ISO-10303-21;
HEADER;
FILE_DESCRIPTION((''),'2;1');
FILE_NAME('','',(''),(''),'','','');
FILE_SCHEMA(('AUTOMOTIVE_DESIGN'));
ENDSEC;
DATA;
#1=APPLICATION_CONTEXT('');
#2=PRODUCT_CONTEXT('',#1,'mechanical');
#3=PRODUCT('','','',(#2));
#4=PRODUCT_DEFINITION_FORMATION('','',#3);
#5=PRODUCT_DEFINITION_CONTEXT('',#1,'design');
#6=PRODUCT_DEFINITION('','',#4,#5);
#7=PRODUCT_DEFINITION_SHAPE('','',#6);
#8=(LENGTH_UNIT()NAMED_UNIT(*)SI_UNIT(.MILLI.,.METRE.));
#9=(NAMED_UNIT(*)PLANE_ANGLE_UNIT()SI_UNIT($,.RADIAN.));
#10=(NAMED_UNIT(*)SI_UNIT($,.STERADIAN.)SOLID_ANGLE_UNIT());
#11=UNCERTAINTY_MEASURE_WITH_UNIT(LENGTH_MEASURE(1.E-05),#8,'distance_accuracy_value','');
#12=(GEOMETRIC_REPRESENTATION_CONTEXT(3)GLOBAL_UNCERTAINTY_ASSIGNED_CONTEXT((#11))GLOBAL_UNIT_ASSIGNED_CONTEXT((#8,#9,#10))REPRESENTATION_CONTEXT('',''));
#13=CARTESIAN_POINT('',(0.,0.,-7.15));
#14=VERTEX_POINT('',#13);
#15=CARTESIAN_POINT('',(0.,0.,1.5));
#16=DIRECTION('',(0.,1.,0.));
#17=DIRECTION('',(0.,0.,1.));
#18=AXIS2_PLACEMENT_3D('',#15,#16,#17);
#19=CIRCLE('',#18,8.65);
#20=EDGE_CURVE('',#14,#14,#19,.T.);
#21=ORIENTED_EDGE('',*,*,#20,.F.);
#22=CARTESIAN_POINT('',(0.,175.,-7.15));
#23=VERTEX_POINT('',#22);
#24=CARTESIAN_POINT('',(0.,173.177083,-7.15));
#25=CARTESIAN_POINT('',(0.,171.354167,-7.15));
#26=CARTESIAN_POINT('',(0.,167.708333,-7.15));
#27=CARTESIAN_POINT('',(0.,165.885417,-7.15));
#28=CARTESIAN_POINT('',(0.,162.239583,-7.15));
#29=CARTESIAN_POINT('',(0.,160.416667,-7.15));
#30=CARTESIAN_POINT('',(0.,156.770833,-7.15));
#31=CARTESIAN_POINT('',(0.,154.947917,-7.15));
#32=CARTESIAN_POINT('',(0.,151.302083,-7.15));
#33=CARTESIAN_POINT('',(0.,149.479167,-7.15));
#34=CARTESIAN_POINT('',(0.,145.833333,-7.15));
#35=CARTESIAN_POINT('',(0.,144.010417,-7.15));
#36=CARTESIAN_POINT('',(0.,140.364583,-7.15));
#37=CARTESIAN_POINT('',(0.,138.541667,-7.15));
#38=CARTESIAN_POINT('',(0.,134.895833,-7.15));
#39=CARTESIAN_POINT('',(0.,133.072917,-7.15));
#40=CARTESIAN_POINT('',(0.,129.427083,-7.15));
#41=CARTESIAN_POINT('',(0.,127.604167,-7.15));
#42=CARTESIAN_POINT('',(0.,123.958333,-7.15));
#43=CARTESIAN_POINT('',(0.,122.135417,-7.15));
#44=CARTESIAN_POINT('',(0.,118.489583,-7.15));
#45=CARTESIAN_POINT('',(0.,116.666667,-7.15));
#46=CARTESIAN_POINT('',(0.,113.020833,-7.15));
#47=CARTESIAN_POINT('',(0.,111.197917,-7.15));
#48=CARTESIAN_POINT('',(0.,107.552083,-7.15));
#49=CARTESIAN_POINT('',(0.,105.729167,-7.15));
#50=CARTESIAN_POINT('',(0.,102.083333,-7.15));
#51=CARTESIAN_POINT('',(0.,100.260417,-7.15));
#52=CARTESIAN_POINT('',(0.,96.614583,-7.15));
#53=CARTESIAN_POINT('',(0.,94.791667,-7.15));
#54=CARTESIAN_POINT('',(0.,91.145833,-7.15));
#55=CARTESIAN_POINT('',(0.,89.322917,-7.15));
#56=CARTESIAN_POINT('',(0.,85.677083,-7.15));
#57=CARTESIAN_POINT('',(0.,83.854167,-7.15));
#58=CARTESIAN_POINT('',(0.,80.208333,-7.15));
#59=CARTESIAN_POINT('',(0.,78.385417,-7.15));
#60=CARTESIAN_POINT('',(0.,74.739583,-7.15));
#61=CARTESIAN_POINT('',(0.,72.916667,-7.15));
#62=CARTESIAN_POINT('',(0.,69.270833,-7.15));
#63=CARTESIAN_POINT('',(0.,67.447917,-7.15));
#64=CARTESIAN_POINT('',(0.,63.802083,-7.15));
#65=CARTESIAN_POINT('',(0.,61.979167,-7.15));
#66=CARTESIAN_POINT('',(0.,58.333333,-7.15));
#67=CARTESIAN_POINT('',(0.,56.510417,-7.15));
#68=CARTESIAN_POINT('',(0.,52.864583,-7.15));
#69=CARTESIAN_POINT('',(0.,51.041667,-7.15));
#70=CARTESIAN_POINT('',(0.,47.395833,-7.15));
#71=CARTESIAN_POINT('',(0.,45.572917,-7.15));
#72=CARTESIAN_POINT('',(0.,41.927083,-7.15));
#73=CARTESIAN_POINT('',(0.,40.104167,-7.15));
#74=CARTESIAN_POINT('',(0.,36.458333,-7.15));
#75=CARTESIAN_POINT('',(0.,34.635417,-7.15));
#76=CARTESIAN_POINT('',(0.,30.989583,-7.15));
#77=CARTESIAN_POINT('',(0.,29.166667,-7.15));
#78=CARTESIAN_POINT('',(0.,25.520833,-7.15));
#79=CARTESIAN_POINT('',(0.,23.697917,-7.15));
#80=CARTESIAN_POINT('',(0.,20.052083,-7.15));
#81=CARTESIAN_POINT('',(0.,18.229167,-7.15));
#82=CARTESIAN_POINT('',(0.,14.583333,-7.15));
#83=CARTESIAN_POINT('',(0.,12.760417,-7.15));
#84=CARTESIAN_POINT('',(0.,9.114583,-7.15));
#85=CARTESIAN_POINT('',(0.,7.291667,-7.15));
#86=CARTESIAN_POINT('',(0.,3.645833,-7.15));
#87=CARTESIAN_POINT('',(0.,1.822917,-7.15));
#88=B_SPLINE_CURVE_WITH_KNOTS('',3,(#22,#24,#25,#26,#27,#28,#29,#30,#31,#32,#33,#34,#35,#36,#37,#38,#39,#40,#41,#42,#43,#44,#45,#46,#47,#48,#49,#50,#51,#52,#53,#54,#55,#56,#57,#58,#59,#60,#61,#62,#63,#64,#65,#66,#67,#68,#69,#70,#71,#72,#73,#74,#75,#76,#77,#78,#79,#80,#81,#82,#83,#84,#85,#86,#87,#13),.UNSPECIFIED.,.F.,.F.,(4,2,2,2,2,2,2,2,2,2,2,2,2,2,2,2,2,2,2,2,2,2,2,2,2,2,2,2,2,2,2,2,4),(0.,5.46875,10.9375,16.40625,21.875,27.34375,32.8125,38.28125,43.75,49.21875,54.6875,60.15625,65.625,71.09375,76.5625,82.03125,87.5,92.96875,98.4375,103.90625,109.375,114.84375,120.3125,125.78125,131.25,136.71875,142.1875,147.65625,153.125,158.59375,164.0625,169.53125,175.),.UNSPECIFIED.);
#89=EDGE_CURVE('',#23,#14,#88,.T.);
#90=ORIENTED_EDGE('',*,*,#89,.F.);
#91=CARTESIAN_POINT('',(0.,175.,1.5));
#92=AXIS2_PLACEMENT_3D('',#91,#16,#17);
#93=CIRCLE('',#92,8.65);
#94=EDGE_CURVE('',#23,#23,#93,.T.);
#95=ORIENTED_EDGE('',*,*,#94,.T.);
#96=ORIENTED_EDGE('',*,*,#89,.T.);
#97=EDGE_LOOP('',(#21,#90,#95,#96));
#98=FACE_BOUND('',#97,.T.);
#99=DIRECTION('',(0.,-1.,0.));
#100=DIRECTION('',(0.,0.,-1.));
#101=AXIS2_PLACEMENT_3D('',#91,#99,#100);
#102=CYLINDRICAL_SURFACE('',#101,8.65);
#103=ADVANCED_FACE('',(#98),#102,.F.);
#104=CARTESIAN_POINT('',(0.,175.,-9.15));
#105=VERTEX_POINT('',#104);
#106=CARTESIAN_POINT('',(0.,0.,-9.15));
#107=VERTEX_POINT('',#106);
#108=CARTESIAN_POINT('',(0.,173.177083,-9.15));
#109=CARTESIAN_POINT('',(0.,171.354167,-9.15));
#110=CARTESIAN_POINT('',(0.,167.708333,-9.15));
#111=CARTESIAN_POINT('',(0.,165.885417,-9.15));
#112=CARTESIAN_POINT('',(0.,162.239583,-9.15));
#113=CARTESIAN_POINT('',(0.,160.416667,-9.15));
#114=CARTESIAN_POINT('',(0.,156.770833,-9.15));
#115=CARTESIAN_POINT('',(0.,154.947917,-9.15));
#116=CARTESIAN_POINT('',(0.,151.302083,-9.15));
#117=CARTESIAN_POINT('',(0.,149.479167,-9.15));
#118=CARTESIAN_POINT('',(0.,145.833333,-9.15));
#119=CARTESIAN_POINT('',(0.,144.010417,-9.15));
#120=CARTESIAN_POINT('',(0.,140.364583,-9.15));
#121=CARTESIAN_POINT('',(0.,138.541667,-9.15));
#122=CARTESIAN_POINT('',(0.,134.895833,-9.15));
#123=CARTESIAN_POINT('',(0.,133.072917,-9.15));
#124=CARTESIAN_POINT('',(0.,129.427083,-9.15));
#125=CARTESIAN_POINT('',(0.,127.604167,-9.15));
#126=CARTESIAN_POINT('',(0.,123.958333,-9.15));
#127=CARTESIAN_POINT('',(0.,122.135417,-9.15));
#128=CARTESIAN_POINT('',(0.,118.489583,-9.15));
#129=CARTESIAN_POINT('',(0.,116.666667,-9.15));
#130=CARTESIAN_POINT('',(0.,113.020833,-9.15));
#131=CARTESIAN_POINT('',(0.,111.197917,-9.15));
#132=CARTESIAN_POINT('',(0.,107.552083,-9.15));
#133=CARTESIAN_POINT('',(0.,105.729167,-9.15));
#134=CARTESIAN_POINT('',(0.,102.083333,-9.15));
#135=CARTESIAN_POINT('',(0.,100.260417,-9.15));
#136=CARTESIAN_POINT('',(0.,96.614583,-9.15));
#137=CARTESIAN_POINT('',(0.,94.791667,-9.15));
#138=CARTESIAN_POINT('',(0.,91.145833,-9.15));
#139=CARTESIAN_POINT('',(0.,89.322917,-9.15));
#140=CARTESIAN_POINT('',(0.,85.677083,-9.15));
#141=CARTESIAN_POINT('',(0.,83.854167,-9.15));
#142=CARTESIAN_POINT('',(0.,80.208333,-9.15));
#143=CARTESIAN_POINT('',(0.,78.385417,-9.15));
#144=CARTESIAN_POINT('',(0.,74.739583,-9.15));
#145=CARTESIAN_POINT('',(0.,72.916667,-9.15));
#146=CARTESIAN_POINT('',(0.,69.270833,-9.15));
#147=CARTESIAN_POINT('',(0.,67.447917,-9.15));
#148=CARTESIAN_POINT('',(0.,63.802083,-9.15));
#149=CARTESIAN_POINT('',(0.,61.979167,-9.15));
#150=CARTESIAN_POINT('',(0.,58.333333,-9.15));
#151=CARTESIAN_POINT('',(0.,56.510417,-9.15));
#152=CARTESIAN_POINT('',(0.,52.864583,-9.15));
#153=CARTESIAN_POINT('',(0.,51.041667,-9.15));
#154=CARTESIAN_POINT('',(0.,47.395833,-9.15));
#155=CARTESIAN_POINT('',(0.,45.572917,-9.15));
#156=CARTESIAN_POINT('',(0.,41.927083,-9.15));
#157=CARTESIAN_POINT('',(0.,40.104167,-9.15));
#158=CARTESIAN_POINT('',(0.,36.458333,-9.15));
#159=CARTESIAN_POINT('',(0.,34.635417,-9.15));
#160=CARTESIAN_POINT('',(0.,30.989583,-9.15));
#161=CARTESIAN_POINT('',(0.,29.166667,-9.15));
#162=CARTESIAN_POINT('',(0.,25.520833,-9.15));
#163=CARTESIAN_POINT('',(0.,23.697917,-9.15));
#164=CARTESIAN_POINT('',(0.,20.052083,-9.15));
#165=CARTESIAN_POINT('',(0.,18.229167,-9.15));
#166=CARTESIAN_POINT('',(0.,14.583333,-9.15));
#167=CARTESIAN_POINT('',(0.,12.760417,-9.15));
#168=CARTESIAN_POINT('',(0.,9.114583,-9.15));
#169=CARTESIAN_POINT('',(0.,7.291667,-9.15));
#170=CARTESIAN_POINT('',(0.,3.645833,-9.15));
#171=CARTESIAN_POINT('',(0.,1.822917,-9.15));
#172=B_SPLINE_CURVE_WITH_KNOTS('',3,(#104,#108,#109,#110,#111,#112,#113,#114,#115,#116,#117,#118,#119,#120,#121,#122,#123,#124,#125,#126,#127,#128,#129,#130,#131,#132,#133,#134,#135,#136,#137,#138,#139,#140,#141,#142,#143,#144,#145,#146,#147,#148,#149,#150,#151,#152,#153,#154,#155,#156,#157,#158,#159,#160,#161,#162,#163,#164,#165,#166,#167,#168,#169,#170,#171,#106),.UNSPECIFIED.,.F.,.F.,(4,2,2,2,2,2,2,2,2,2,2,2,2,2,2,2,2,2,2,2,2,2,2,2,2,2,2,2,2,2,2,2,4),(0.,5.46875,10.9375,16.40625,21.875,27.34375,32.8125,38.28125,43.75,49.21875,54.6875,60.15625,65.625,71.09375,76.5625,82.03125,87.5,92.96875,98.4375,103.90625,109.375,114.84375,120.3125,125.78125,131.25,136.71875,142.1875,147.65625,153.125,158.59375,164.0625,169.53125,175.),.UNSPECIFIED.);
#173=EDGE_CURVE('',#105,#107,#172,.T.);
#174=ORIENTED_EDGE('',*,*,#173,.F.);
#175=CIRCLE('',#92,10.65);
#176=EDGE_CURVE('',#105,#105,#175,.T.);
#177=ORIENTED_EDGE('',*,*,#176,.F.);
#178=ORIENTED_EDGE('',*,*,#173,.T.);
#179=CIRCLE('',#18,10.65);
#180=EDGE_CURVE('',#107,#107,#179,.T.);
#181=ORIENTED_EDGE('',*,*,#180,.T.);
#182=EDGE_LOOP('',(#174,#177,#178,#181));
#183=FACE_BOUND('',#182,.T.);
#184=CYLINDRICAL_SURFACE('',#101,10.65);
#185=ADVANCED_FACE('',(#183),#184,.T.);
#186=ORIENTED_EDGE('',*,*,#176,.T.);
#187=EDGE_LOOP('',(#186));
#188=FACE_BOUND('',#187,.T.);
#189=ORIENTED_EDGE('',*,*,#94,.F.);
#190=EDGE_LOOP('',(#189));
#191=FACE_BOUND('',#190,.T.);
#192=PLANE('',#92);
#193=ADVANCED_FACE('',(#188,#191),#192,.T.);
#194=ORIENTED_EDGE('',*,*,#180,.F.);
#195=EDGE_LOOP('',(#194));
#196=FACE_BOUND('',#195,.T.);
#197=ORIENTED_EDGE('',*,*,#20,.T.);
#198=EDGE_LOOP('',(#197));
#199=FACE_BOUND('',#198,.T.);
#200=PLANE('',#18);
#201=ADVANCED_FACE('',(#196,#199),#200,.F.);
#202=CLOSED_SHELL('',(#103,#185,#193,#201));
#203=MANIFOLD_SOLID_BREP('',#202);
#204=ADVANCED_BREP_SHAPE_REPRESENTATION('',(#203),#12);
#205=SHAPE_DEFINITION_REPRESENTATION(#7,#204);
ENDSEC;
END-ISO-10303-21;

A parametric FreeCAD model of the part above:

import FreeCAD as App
import Part
import Sketcher
Q = App.Units.Quantity

doc = App.newDocument("Part")
body = doc.addObject("PartDesign::Body", "Body")

sketch1 = doc.addObject("Sketcher::SketchObject", "Sketch")
body.addObject(sketch1)
sketch1.AttachmentSupport = (doc.XZ_Plane, [""])
sketch1.MapMode = "FlatFace"
sketch1.addGeometry(Part.Circle(App.Vector(0, 2, 0), App.Vector(0, 0, 1), 11), False)
sketch1.addGeometry(Part.Circle(App.Vector(0, 2, 0), App.Vector(0, 0, 1), 9), False)
sketch1.addConstraint(Sketcher.Constraint("Coincident", 1, 3, 0, 3))
sketch1.addConstraint(Sketcher.Constraint("PointOnObject", 0, 3, -2))
sketch1.addConstraint(Sketcher.Constraint("Diameter", 0, Q("21.3 mm")))
sketch1.addConstraint(Sketcher.Constraint("Diameter", 1, Q("17.3 mm")))
sketch1.addConstraint(Sketcher.Constraint("DistanceY", -1, 1, 0, 3, Q("1.5 mm")))
pad1 = doc.addObject("PartDesign::Pad", "Pad")
body.addObject(pad1)
pad1.Profile = sketch1
pad1.Length = 175
pad1.Reversed = True

doc.recompute()
